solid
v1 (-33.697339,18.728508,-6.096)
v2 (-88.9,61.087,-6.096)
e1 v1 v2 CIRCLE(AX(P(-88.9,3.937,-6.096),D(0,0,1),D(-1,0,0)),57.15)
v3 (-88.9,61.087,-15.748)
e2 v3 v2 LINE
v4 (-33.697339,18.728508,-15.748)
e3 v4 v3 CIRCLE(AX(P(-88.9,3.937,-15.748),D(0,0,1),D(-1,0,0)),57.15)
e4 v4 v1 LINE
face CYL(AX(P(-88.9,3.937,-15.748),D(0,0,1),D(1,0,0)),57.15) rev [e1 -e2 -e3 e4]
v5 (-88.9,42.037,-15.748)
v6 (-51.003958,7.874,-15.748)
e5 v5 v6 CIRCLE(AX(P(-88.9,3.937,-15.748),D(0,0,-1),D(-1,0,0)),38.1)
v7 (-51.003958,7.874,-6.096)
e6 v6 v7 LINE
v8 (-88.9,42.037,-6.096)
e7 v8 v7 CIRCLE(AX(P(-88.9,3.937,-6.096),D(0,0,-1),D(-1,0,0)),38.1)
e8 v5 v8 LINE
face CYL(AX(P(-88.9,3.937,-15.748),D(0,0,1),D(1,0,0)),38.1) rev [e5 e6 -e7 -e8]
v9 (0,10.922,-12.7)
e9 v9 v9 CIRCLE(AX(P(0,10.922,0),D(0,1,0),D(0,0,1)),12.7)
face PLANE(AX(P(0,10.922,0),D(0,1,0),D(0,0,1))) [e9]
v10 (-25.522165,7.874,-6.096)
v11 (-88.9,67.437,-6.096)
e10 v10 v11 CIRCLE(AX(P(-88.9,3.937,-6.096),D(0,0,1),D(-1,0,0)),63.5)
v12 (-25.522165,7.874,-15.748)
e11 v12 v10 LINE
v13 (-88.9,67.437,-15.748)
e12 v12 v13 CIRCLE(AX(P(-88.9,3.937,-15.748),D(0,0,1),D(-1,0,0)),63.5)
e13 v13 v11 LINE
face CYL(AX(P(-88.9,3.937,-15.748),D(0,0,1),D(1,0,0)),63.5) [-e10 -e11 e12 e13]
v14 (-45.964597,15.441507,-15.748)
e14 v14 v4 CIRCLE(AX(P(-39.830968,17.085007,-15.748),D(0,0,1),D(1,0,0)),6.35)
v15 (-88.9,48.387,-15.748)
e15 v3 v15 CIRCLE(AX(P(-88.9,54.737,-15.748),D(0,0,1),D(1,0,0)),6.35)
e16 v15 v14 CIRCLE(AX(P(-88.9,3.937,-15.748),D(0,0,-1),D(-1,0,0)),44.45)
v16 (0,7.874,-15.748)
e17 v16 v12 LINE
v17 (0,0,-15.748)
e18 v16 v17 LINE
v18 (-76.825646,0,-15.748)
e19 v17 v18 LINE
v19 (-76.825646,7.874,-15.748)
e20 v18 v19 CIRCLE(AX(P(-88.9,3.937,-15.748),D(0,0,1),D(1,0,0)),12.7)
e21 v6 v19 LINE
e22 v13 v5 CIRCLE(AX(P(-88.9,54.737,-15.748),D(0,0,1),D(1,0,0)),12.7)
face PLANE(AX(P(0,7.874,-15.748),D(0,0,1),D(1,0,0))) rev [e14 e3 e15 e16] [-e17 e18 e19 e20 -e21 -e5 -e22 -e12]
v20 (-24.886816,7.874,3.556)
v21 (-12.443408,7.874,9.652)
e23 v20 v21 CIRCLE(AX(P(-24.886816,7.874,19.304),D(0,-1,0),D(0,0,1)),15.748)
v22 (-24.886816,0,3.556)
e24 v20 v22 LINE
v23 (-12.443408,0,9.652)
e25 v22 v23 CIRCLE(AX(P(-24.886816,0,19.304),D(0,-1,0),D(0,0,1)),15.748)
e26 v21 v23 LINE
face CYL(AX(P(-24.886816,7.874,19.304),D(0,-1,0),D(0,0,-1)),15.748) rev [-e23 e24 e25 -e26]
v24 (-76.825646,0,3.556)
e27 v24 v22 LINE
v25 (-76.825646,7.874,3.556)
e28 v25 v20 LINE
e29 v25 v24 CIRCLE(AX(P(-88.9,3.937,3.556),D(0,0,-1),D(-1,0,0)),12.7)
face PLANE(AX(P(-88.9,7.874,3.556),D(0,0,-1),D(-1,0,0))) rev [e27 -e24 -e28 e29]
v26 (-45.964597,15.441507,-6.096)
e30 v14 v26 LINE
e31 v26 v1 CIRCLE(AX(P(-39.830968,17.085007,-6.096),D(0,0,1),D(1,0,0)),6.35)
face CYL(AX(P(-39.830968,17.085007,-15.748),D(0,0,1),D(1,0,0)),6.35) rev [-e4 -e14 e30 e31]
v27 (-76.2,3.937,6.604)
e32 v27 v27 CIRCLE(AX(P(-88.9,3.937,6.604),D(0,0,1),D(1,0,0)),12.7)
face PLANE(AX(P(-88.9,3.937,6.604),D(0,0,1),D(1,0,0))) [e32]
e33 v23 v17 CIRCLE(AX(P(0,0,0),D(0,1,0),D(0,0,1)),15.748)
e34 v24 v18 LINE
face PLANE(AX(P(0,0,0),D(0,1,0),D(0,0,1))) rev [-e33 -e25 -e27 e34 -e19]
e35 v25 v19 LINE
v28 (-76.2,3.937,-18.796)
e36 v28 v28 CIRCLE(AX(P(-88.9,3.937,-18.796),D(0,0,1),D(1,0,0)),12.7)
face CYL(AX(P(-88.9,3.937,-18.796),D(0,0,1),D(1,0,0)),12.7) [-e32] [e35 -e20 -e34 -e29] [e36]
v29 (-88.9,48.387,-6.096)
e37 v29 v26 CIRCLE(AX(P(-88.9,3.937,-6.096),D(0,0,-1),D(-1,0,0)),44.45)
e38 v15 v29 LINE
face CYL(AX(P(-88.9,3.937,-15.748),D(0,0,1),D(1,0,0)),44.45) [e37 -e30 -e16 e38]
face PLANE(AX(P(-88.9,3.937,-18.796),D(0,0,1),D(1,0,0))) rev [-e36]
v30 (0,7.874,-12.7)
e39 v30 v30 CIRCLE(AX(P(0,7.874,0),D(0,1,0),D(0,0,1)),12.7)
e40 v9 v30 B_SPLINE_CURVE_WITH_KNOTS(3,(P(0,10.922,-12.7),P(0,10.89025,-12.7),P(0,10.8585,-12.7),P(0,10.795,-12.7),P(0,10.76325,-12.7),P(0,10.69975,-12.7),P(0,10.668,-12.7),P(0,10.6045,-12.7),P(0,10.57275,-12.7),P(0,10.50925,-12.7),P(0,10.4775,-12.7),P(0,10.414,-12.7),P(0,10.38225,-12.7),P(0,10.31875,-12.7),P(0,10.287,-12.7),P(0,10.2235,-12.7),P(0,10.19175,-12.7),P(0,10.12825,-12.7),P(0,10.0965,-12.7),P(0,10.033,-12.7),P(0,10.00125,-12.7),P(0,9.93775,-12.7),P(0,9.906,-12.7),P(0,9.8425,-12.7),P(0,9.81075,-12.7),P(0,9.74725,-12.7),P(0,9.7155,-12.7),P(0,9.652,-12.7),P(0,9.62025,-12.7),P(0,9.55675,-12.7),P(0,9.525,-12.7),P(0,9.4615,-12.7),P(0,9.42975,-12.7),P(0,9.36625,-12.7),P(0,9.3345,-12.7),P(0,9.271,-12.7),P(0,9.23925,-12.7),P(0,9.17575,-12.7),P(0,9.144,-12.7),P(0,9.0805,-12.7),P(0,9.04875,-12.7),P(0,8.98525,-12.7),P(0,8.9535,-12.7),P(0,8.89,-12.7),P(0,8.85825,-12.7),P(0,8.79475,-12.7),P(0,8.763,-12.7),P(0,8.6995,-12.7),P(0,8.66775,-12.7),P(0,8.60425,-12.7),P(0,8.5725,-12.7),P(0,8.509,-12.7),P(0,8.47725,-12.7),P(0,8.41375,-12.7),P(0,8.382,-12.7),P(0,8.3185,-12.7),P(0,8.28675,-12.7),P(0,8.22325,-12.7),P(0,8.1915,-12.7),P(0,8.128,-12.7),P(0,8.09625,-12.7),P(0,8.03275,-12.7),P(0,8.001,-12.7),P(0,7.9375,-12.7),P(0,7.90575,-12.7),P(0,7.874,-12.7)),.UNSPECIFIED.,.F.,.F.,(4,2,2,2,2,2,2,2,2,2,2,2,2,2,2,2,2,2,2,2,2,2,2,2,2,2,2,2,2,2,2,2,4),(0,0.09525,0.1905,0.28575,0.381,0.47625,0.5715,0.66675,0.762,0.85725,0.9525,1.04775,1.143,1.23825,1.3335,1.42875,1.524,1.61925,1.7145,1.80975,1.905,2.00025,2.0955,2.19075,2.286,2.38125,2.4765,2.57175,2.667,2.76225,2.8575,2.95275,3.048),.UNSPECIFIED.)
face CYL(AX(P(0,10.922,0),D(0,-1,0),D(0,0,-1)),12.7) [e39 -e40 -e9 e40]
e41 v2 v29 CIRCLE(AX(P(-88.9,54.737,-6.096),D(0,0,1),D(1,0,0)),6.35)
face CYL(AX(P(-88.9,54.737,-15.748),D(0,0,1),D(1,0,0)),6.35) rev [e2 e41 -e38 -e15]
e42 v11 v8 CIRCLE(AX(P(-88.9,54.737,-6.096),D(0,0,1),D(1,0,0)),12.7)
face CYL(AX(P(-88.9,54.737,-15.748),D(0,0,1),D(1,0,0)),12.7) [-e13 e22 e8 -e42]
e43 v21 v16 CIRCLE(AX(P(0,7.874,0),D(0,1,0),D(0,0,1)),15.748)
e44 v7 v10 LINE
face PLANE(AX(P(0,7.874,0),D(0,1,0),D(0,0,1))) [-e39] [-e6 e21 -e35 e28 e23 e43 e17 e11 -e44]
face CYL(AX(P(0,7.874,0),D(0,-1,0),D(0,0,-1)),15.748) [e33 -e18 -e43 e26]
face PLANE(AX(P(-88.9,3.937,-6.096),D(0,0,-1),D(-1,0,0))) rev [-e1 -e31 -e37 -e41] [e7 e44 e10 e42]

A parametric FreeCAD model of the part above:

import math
import FreeCAD as App
import Part
import Sketcher

V = App.Vector
Q = App.Units.Quantity

doc = App.newDocument("Part")
body = doc.addObject("PartDesign::Body", "Body")

# Sketch on XZ plane
sketch1 = body.newObject("Sketcher::SketchObject", "Sketch")
sketch1.AttachmentSupport = (doc.getObject("XZ_Plane"), [""])
sketch1.MapMode = "FlatFace"
sketch1.addGeometry(Part.LineSegment(V(0, -16, 0), V(-89, -16, 0)), False)
sketch1.addGeometry(Part.LineSegment(V(-89, -16, 0), V(-89, 4, 0)), False)
sketch1.addGeometry(Part.LineSegment(V(-89, 4, 0), V(-25, 4, 0)), False)
sketch1.addGeometry(Part.ArcOfCircle(Part.Circle(V(-25, 19, 0), V(0, 0, 1), 16), math.radians(-90), math.radians(-38)), False)
sketch1.addGeometry(Part.ArcOfCircle(Part.Circle(V(0, 0, 0), V(0, 0, 1), 16), math.radians(-90), math.radians(142)), False)
sketch1.addConstraint(Sketcher.Constraint("Coincident", 0, 2, 1, 1))
sketch1.addConstraint(Sketcher.Constraint("Coincident", 1, 2, 2, 1))
sketch1.addConstraint(Sketcher.Constraint("Tangent", 2, 2, 3, 1))
sketch1.addConstraint(Sketcher.Constraint("Tangent", 3, 2, 4, 2))
sketch1.addConstraint(Sketcher.Constraint("Tangent", 4, 1, 0, 1))
sketch1.addConstraint(Sketcher.Constraint("Horizontal", 0))
sketch1.addConstraint(Sketcher.Constraint("Vertical", 1))
sketch1.addConstraint(Sketcher.Constraint("Horizontal", 2))
sketch1.addConstraint(Sketcher.Constraint("Coincident", 4, 3, -1, 1))
sketch1.addConstraint(Sketcher.Constraint("Equal", 3, 4))
sketch1.addConstraint(Sketcher.Constraint("Radius", 3, Q("0.62 in")))
sketch1.addConstraint(Sketcher.Constraint("DistanceX", 0, 2, 0, 1, Q("3.5 in")))
sketch1.addConstraint(Sketcher.Constraint("DistanceY", 0, 2, 3, 2, Q("1 in")))
pad1 = body.newObject("PartDesign::Pad", "Pad")
pad1.Profile = sketch1
pad1.Length = Q("0.31 in")
pad1.Reversed = True

# Sketch on XY plane
sketch2 = body.newObject("Sketcher::SketchObject", "Sketch001")
sketch2.AttachmentSupport = (doc.getObject("XY_Plane"), [""])
sketch2.MapMode = "FlatFace"
sketch2.AttachmentOffset = App.Placement(V(0, 0, -0.24 * 25.4), App.Rotation())
sketch2.addGeometry(Part.Circle(V(-89, 4, 0), V(0, 0, 1), 13), False)
sketch2.addConstraint(Sketcher.Constraint("Diameter", 0, Q("1 in")))
sketch2.addConstraint(Sketcher.Constraint("DistanceX", 0, 3, -1, 1, Q("3.5 in")))
sketch2.addConstraint(Sketcher.Constraint("DistanceY", -1, 1, 0, 3, Q("0.155 in")))
pad2 = body.newObject("PartDesign::Pad", "Pad001")
pad2.Profile = sketch2
pad2.Type = "TwoLengths"
pad2.Length = Q("0.5 in")
pad2.Length2 = Q("0.5 in")

# Sketch on XY plane
sketch3 = body.newObject("Sketcher::SketchObject", "Sketch002")
sketch3.AttachmentSupport = (doc.getObject("XY_Plane"), [""])
sketch3.MapMode = "FlatFace"
sketch3.AttachmentOffset = App.Placement(V(0, 0, -0.24 * 25.4), App.Rotation())
sketch3.addGeometry(Part.LineSegment(V(-51, 8, 0), V(-26, 8, 0)), False)
sketch3.addGeometry(Part.ArcOfCircle(Part.Circle(V(-89, 4, 0), V(0, 0, 1), 64), math.radians(4), math.radians(90)), False)
sketch3.addGeometry(Part.ArcOfCircle(Part.Circle(V(-89, 55, 0), V(0, 0, 1), 13), math.radians(90), math.radians(270)), False)
sketch3.addGeometry(Part.ArcOfCircle(Part.Circle(V(-89, 4, 0), V(0, 0, 1), 38), math.radians(6), math.radians(90)), False)
sketch3.addConstraint(Sketcher.Constraint("Coincident", 0, 2, 1, 1))
sketch3.addConstraint(Sketcher.Constraint("Tangent", 1, 2, 2, 1))
sketch3.addConstraint(Sketcher.Constraint("Tangent", 2, 2, 3, 2))
sketch3.addConstraint(Sketcher.Constraint("Coincident", 3, 1, 0, 1))
sketch3.addConstraint(Sketcher.Constraint("Horizontal", 0))
sketch3.addConstraint(Sketcher.Constraint("Coincident", 3, 3, 1, 3))
sketch3.addConstraint(Sketcher.Constraint("Vertical", 1, 3, 2, 3))
sketch3.addConstraint(Sketcher.Constraint("Radius", 1, Q("2.5 in")))
sketch3.addConstraint(Sketcher.Constraint("Radius", 2, Q("0.5 in")))
sketch3.addConstraint(Sketcher.Constraint("DistanceX", 1, 3, -1, 1, Q("3.5 in")))
sketch3.addConstraint(Sketcher.Constraint("DistanceY", -1, 1, 0, 2, Q("0.31 in")))
sketch3.addConstraint(Sketcher.Constraint("DistanceY", -1, 1, 1, 3, Q("0.155 in")))
pad3 = body.newObject("PartDesign::Pad", "Pad002")
pad3.Profile = sketch3
pad3.Length = Q("0.38 in")
pad3.Reversed = True

# Sketch on XY plane
sketch4 = body.newObject("Sketcher::SketchObject", "Sketch003")
sketch4.AttachmentSupport = (doc.getObject("XY_Plane"), [""])
sketch4.MapMode = "FlatFace"
sketch4.AttachmentOffset = App.Placement(V(0, 0, -0.24 * 25.4), App.Rotation())
sketch4.addGeometry(Part.ArcOfCircle(Part.Circle(V(-89, 55, 0), V(0, 0, 1), 6), math.radians(90), math.radians(270)), False)
sketch4.addGeometry(Part.ArcOfCircle(Part.Circle(V(-89, 4, 0), V(0, 0, 1), 44), math.radians(15), math.radians(90)), False)
sketch4.addGeometry(Part.ArcOfCircle(Part.Circle(V(-40, 17, 0), V(0, 0, 1), 6), math.radians(-165), math.radians(15)), False)
sketch4.addGeometry(Part.ArcOfCircle(Part.Circle(V(-89, 4, 0), V(0, 0, 1), 57), math.radians(15), math.radians(90)), False)
sketch4.addConstraint(Sketcher.Constraint("Tangent", 0, 2, 1, 2))
sketch4.addConstraint(Sketcher.Constraint("Tangent", 1, 1, 2, 1))
sketch4.addConstraint(Sketcher.Constraint("Tangent", 2, 2, 3, 1))
sketch4.addConstraint(Sketcher.Constraint("Tangent", 3, 2, 0, 1))
sketch4.addConstraint(Sketcher.Constraint("Coincident", 3, 3, 1, 3))
sketch4.addConstraint(Sketcher.Constraint("Vertical", 0, 3, 1, 3))
sketch4.addConstraint(Sketcher.Constraint("Radius", 0, Q("0.25 in")))
sketch4.addConstraint(Sketcher.Constraint("Radius", 1, Q("1.75 in")))
sketch4.addConstraint(Sketcher.Constraint("DistanceX", 0, 3, -1, 1, Q("3.5 in")))
sketch4.addConstraint(Sketcher.Constraint("DistanceY", -1, 1, 0, 3, Q("2.155 in")))
sketch4.addConstraint(Sketcher.Constraint("DistanceY", 1, 1, 2, 3, 1.643501))
pocket1 = body.newObject("PartDesign::Pocket", "Pocket")
pocket1.Profile = sketch4
pocket1.Length = Q("0.38 in")

# Sketch on XZ plane
sketch5 = body.newObject("Sketcher::SketchObject", "Sketch004")
sketch5.AttachmentSupport = (doc.getObject("XZ_Plane"), [""])
sketch5.MapMode = "FlatFace"
sketch5.AttachmentOffset = App.Placement(V(0, 0, -0.31 * 25.4), App.Rotation())
sketch5.addGeometry(Part.Circle(V(0, 0, 0), V(0, 0, 1), 13), False)
sketch5.addConstraint(Sketcher.Constraint("Coincident", 0, 3, -1, 1))
sketch5.addConstraint(Sketcher.Constraint("Diameter", 0, Q("1 in")))
pad4 = body.newObject("PartDesign::Pad", "Pad003")
pad4.Profile = sketch5
pad4.Length = Q("0.12 in")
pad4.Reversed = True

doc.recompute()
